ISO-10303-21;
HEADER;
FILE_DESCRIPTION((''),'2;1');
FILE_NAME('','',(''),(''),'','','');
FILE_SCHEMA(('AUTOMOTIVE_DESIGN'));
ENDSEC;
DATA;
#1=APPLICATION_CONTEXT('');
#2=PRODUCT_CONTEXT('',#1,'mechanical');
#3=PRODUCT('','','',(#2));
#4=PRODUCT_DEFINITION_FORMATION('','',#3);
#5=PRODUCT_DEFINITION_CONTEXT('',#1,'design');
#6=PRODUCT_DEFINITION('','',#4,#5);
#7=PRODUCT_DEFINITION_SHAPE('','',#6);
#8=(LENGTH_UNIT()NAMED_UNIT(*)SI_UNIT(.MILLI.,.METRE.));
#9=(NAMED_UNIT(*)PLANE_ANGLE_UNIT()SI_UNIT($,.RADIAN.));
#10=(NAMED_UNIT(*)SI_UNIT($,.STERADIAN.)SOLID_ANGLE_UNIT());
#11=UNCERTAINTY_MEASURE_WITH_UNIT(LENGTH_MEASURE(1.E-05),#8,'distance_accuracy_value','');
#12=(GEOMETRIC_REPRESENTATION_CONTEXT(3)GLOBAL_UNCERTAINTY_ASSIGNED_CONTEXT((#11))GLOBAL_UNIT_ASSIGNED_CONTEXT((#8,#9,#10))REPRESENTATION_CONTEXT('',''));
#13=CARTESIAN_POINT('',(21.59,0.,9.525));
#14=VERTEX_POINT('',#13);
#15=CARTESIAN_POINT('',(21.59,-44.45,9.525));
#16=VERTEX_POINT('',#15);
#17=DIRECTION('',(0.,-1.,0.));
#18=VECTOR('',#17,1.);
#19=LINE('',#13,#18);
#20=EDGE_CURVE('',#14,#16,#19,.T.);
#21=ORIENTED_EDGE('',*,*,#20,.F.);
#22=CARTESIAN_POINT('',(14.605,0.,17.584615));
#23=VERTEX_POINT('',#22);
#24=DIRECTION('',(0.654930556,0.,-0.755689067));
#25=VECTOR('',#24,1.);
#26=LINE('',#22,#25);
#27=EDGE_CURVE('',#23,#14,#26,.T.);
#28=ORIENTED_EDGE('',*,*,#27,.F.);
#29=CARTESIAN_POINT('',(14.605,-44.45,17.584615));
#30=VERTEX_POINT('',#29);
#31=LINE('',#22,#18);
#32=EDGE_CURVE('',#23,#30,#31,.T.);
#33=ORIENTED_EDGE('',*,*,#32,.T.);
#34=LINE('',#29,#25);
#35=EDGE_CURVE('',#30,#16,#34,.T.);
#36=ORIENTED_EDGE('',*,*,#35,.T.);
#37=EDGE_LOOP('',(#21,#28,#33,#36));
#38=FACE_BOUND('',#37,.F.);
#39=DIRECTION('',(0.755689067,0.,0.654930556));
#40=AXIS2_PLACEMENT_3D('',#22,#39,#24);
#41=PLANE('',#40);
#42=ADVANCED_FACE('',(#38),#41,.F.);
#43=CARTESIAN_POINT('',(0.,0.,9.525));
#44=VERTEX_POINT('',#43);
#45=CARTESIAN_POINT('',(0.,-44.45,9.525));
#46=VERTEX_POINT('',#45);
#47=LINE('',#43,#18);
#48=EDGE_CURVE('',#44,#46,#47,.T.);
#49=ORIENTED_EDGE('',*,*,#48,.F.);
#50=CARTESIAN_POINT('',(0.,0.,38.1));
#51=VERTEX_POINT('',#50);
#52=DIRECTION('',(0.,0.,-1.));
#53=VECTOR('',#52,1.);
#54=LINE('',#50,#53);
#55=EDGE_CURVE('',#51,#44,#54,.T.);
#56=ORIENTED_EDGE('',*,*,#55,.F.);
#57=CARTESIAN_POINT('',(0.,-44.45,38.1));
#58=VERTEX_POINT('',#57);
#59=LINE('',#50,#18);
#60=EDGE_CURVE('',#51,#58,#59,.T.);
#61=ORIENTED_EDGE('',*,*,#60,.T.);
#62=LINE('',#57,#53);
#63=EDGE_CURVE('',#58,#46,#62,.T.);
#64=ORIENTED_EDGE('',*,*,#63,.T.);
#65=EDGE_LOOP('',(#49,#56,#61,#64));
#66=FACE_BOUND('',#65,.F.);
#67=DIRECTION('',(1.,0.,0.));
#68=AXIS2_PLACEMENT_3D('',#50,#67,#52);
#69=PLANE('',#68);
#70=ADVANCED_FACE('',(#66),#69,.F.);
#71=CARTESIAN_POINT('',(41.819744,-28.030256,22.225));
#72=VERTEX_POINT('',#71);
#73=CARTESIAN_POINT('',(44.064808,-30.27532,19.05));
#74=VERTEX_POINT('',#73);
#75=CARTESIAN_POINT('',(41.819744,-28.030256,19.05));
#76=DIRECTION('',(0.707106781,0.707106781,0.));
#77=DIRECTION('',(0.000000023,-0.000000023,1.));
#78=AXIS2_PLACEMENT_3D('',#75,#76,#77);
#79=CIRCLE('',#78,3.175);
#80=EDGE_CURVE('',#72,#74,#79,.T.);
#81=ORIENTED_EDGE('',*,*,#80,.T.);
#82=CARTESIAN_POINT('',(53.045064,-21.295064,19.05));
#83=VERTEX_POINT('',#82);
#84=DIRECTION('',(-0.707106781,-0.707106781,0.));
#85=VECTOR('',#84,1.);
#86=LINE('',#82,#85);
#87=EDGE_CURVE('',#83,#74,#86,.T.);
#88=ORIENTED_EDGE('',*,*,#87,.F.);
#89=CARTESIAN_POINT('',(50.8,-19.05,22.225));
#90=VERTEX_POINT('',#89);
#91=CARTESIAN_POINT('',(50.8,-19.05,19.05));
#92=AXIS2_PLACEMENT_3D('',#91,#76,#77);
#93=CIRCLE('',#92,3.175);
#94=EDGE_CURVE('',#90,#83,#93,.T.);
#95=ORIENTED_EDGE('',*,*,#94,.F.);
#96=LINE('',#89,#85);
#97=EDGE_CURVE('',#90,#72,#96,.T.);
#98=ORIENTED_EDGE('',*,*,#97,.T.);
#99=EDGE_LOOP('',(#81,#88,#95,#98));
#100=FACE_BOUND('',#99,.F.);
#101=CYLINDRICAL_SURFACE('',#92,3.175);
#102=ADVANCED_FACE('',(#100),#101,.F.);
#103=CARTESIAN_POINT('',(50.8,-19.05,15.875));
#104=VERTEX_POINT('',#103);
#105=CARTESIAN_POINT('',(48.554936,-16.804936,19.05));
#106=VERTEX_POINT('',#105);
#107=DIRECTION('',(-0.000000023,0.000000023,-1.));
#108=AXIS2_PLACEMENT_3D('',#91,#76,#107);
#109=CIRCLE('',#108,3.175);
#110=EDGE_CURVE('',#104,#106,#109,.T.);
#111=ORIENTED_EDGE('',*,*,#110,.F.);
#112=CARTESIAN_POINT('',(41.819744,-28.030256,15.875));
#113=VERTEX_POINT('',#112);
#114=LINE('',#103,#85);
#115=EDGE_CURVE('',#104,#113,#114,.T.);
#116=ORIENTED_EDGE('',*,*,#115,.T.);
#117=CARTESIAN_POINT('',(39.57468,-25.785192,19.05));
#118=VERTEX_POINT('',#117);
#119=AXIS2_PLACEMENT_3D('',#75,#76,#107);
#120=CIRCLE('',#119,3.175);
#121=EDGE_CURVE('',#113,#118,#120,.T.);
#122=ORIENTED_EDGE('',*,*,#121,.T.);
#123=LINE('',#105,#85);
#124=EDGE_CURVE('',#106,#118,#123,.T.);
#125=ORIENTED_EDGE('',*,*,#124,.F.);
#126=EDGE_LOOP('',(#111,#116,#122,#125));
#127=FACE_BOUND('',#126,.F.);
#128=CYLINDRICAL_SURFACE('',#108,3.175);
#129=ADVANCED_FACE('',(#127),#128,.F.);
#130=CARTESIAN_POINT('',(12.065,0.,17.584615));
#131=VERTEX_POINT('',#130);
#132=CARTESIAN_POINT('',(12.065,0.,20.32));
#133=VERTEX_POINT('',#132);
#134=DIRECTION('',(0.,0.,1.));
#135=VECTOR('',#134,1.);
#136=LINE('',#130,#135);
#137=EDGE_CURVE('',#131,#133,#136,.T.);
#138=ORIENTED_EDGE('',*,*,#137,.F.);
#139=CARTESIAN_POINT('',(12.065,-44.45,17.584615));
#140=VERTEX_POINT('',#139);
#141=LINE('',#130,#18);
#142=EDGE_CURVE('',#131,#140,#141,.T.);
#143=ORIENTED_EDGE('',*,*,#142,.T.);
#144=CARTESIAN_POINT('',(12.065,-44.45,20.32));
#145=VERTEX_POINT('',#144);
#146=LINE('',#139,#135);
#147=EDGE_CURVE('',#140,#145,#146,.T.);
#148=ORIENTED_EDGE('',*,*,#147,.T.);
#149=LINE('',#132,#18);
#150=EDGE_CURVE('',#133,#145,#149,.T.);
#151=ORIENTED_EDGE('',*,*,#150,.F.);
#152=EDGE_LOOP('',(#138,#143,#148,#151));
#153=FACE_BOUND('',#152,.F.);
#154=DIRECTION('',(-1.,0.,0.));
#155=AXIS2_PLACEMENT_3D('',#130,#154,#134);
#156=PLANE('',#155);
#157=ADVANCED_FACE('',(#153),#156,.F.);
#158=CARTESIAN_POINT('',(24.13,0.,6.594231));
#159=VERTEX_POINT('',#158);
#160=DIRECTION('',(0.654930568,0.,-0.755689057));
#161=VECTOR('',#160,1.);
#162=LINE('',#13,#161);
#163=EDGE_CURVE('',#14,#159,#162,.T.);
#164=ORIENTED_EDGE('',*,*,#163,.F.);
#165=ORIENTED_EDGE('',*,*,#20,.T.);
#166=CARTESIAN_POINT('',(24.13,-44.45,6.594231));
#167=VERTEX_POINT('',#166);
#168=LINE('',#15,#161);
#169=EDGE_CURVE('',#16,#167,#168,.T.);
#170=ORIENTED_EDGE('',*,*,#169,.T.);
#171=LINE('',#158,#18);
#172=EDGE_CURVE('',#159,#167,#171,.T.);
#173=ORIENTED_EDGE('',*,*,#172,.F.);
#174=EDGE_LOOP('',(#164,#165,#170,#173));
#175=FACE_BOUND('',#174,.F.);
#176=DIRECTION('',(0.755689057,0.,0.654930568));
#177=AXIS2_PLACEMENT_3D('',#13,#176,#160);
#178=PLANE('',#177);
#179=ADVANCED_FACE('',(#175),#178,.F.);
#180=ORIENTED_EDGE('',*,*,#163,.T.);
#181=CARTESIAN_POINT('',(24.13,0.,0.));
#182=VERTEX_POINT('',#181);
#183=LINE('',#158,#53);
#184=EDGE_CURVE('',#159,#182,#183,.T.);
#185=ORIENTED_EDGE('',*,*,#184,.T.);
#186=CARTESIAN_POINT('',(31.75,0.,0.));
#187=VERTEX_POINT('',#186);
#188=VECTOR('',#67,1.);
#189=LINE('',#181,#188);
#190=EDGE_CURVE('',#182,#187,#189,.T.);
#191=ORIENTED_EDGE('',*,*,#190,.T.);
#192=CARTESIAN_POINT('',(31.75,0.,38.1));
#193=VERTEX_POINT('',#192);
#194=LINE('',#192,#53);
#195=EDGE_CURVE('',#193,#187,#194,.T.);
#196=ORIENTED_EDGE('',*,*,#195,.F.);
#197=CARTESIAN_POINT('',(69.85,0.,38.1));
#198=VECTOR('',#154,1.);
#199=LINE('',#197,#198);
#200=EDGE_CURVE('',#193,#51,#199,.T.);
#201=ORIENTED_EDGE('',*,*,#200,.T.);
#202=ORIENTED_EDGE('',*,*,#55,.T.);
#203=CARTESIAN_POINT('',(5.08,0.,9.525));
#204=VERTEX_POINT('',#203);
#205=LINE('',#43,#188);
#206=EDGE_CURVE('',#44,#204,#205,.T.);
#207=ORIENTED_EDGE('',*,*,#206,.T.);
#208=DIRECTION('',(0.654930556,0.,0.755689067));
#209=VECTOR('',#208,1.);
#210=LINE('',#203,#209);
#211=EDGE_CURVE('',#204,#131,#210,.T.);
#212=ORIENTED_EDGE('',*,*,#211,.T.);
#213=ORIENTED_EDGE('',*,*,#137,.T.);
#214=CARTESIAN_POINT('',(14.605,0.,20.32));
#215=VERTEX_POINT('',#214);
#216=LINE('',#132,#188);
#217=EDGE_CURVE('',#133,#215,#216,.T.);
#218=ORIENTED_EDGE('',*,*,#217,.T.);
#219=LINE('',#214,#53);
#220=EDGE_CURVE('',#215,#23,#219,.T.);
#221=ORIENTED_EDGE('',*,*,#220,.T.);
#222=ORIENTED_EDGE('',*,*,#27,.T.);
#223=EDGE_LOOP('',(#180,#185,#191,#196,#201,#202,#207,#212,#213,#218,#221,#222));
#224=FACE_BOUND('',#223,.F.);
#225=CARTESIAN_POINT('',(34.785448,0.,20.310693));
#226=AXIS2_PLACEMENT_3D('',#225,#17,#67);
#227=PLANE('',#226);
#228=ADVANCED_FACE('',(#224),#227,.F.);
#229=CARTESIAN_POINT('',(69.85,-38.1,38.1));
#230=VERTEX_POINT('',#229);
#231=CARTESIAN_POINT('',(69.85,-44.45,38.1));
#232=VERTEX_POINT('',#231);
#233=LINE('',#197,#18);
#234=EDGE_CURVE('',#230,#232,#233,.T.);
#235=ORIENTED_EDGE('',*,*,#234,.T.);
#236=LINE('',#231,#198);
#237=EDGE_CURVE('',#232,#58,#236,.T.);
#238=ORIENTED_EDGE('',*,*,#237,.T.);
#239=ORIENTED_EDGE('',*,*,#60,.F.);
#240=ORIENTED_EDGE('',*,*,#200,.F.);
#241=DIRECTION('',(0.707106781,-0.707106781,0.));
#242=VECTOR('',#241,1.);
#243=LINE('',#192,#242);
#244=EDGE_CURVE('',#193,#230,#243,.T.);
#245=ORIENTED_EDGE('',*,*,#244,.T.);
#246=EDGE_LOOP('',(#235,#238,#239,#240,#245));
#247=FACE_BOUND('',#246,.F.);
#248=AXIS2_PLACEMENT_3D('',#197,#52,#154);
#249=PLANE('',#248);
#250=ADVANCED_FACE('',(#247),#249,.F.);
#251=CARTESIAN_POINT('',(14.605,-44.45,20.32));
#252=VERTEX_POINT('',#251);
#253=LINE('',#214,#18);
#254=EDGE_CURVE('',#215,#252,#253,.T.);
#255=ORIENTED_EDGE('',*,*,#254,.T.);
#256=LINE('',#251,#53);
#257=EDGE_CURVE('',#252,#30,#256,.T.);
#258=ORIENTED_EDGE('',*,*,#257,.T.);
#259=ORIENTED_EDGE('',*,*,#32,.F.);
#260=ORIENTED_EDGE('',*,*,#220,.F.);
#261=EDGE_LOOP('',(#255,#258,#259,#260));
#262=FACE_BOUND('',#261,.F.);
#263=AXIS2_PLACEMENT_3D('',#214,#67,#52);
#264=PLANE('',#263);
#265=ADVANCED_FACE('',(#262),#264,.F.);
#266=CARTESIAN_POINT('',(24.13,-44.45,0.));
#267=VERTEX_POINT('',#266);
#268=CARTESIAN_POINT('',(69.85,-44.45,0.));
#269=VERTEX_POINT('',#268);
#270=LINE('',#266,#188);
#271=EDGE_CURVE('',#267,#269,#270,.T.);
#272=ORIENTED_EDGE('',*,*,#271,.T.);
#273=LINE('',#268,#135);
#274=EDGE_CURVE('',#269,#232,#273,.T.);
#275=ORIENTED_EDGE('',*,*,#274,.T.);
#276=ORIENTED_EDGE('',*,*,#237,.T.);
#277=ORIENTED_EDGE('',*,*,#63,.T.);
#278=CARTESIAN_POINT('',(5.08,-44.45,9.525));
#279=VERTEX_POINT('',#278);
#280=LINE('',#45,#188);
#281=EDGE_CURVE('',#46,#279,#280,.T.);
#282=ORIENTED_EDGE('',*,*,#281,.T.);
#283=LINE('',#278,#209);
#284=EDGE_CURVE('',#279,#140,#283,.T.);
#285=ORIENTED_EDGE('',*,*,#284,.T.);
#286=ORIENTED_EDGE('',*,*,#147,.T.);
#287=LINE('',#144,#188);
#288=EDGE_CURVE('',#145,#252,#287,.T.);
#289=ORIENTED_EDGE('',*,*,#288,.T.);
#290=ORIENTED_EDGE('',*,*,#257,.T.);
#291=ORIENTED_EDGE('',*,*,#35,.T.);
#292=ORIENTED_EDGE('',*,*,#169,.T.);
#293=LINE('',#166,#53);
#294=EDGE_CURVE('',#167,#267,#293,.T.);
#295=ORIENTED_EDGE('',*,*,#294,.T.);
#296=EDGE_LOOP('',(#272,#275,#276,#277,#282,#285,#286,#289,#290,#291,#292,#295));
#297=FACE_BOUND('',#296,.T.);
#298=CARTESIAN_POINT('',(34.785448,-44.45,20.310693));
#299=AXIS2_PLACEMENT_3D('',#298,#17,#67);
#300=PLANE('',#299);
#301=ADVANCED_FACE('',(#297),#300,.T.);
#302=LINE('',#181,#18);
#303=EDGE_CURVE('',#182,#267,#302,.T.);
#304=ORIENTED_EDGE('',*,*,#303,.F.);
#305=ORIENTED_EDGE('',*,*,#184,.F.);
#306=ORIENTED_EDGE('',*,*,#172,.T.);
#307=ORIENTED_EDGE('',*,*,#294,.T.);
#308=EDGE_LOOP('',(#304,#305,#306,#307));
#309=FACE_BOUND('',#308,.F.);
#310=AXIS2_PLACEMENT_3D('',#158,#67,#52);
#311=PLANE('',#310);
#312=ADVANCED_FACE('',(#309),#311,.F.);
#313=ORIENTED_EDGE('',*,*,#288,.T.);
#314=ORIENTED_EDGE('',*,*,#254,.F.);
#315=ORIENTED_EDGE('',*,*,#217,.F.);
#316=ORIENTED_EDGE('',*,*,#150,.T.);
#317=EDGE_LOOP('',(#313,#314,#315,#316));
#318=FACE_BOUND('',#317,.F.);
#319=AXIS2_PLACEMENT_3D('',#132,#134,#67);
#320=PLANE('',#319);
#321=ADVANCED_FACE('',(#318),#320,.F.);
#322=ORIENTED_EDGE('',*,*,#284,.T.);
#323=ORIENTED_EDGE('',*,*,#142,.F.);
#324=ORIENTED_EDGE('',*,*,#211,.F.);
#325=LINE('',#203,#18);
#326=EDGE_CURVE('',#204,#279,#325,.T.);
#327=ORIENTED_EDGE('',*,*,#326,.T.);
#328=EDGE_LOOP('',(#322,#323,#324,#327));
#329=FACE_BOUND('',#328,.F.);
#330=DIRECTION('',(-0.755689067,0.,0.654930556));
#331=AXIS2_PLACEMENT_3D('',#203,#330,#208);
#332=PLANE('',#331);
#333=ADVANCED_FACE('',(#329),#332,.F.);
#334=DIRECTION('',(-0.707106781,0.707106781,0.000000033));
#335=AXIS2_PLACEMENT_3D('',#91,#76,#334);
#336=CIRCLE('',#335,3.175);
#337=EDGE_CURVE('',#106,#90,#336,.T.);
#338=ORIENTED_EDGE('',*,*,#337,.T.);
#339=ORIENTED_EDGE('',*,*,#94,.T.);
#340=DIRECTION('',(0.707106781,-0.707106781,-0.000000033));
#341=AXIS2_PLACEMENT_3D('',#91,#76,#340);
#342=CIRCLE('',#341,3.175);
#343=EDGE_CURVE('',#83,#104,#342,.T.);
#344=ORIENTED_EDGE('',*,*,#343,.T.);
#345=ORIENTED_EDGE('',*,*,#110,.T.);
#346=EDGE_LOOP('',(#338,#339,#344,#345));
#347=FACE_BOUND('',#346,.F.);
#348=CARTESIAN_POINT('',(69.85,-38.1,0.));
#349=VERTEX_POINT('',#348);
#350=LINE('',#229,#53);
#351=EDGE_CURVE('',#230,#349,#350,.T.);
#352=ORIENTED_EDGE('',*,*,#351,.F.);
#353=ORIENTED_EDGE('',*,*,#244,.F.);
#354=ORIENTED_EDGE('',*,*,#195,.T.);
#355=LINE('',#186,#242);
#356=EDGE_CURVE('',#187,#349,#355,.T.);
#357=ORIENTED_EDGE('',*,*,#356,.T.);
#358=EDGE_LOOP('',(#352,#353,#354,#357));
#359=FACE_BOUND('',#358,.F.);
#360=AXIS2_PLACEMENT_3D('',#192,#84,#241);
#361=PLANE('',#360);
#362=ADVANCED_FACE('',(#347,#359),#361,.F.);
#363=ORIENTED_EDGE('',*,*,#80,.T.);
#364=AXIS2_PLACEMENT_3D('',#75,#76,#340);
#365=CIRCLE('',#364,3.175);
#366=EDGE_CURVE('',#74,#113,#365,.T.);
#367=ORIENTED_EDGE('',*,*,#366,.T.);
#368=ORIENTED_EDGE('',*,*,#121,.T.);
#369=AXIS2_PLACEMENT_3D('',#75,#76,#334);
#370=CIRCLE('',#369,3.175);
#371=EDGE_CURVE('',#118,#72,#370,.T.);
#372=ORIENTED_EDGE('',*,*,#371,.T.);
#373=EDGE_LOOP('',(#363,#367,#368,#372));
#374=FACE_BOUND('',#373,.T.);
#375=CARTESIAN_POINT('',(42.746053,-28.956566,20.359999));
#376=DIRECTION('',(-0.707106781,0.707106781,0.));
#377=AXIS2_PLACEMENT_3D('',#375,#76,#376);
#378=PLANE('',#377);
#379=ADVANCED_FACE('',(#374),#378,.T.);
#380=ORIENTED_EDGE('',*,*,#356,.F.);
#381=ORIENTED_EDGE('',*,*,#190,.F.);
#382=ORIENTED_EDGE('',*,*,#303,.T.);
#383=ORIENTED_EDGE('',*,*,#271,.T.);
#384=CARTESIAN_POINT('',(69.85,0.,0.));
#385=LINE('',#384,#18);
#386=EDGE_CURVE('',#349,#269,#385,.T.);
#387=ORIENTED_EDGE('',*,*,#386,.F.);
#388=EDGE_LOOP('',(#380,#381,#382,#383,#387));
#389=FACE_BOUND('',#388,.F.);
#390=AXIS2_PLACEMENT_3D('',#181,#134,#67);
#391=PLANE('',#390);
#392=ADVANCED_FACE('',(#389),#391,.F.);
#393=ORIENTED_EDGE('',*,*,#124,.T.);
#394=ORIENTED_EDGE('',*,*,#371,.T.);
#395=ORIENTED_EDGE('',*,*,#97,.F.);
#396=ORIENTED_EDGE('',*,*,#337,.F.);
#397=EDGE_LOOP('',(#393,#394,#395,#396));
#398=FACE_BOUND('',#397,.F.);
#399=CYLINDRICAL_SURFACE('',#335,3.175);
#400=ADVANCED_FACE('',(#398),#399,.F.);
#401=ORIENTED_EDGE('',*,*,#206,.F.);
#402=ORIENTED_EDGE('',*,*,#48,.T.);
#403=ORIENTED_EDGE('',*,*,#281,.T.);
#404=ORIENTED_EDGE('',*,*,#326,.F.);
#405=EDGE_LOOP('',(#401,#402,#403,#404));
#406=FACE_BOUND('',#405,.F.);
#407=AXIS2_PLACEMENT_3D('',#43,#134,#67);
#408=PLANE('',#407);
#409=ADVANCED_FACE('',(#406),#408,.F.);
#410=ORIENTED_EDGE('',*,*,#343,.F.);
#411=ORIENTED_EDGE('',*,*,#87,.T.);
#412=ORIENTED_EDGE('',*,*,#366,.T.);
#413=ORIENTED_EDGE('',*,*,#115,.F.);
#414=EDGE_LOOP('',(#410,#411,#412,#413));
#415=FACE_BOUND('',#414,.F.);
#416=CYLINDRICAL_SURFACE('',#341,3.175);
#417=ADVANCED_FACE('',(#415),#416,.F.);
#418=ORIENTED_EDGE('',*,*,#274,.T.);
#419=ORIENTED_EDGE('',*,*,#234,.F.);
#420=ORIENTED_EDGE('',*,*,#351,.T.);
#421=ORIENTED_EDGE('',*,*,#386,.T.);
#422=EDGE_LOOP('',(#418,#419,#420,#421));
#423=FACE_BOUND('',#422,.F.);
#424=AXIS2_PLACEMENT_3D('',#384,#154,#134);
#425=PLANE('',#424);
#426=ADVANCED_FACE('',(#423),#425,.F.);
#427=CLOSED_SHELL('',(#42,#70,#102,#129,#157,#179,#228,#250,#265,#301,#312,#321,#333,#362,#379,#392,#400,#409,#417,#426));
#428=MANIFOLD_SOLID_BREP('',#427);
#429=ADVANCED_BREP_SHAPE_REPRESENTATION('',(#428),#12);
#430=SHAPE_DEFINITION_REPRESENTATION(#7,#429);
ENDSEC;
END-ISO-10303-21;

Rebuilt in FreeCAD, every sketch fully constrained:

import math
import FreeCAD as App
import Part
import Sketcher
from FreeCAD import Vector
Q = App.Units.Quantity


def add_polygon(sketch, points):
    """Adds a closed chain of lines whose ends are joined by coincident constraints."""
    first, n = sketch.GeometryCount, len(points)
    for a, b in zip(points, points[1:] + points[:1]):
        sketch.addGeometry(Part.LineSegment(App.Vector(*a, 0), App.Vector(*b, 0)), False)
    for i in range(n):
        sketch.addConstraint(Sketcher.Constraint("Coincident", first + i, 2, first + (i + 1) % n, 1))

doc = App.newDocument("Part")
body = doc.addObject("PartDesign::Body", "Body")

sketch1 = body.newObject("Sketcher::SketchObject", "Sketch")
sketch1.AttachmentSupport = (doc.getObject("XZ_Plane"), [""])
sketch1.MapMode = "FlatFace"
add_polygon(sketch1, [(24.1, 6.6), (24.1, 0), (69.8, 0), (69.8, 38.1), (0, 38.1), (0, 9.5), (5.1, 9.5), (12.1, 17.6), (12.1, 20.3), (14.6, 20.3), (14.6, 17.6), (21.6, 9.5)])
sketch1.addConstraint([
    Sketcher.Constraint("Vertical", 0),
    Sketcher.Constraint("Horizontal", 1),
    Sketcher.Constraint("Vertical", 2),
    Sketcher.Constraint("Horizontal", 3),
    Sketcher.Constraint("Vertical", 4),
    Sketcher.Constraint("Horizontal", 5),
    Sketcher.Constraint("Vertical", 7),
    Sketcher.Constraint("Horizontal", 8),
    Sketcher.Constraint("Vertical", 9),
    Sketcher.Constraint("PointOnObject", 0, 2, -1),
    Sketcher.Constraint("PointOnObject", 3, 2, -2),
    Sketcher.Constraint("Parallel", 10, 11),
    Sketcher.Constraint("Horizontal", 6, 2, 9, 2),
    Sketcher.Constraint("Horizontal", 5, 2, 10, 2),
    Sketcher.Constraint("Equal", 6, 10),
    Sketcher.Constraint("DistanceX", 1, 1, 1, 2, Q("1.8 in")),
    Sketcher.Constraint("DistanceX", 5, 1, 5, 2, Q("0.2 in")),
    Sketcher.Constraint("DistanceX", 8, 1, 8, 2, Q("0.1 in")),
    Sketcher.Constraint("DistanceY", 2, 1, 2, 2, Q("1.5 in")),
    Sketcher.Constraint("DistanceX", 3, 2, 3, 1, Q("2.75 in")),
    Sketcher.Constraint("DistanceY", -1, 1, 7, 2, Q("0.8 in")),
    Sketcher.Constraint("DistanceX", 10, 2, 0, 2, Q("0.1 in")),
    Sketcher.Constraint("DistanceY", 4, 2, 4, 1, Q("1.125 in")),
    Sketcher.Constraint("DistanceY", 0, 2, 0, 1, 6.594231),
])
pad1 = body.newObject("PartDesign::Pad", "Pad")
pad1.Profile = sketch1
pad1.Length = Q("1.75 in")

sketch2 = body.newObject("Sketcher::SketchObject", "Sketch001")
sketch2.AttachmentSupport = (doc.getObject("XY_Plane"), [""])
sketch2.MapMode = "FlatFace"
sketch2.AttachmentOffset = App.Placement(Vector(0, 0, 1.5 * 25.4), App.Rotation())
add_polygon(sketch2, [(70, -38), (70, 0), (32, 0)])
sketch2.addConstraint([
    Sketcher.Constraint("Vertical", 0),
    Sketcher.Constraint("Horizontal", 1),
    Sketcher.Constraint("PointOnObject", 0, 2, -1),
    Sketcher.Constraint("Equal", 1, 0),
    Sketcher.Constraint("DistanceX", 1, 2, 1, 1, Q("1.5 in")),
    Sketcher.Constraint("DistanceX", -1, 1, 0, 2, Q("2.75 in")),
])
pocket1 = body.newObject("PartDesign::Pocket", "Pocket")
pocket1.Profile = sketch2
pocket1.Length = Q("1.5 in")

sketch3 = body.newObject("Sketcher::SketchObject", "Sketch002")
sketch3.Placement = App.Placement(Vector(15.875, 15.875, 0), App.Rotation(Vector(-0.707106781, 0.707106781, 0), Vector(0, 0, 0.999999999), Vector(0.707106781, 0.707106781, 0), "ZXY"))
sketch3.addGeometry([
    Part.ArcOfCircle(Part.Circle(Vector(-49.4, 19, 0), Vector(0, 0, 1), 3.2), math.radians(90), math.radians(180)),
    Part.ArcOfCircle(Part.Circle(Vector(-49.4, 19.1, 0), Vector(0, 0, 1), 3.2), math.radians(-180), math.radians(-90)),
    Part.ArcOfCircle(Part.Circle(Vector(-49.4, 19.1, 0), Vector(0, 0, 1), 3.2), math.radians(-90), math.radians(0)),
    Part.ArcOfCircle(Part.Circle(Vector(-49.4, 19, 0), Vector(0, 0, 1), 3.2), math.radians(0), math.radians(90)),
], False)
sketch3.addConstraint([
    Sketcher.Constraint("Tangent", 0, 2, 1, 1),
    Sketcher.Constraint("Tangent", 1, 2, 2, 1),
    Sketcher.Constraint("Tangent", 2, 2, 3, 1),
    Sketcher.Constraint("Tangent", 3, 2, 0, 1),
    Sketcher.Constraint("Equal", 0, 1),
    Sketcher.Constraint("Horizontal", 3, 3, 0, 2),
    Sketcher.Constraint("Horizontal", 0, 2, 2, 2),
    Sketcher.Constraint("Vertical", 3, 3, 1, 2),
    Sketcher.Constraint("Vertical", 1, 2, 3, 2),
    Sketcher.Constraint("Radius", 0, Q("0.125 in")),
    Sketcher.Constraint("DistanceY", -1, 1, 0, 3, Q("0.75 in")),
    Sketcher.Constraint("DistanceX", 0, 3, -1, 1, 49.391409),
])
pocket2 = body.newObject("PartDesign::Pocket", "Pocket001")
pocket2.Profile = sketch3
pocket2.Length = Q("0.5 in")

doc.recompute()
